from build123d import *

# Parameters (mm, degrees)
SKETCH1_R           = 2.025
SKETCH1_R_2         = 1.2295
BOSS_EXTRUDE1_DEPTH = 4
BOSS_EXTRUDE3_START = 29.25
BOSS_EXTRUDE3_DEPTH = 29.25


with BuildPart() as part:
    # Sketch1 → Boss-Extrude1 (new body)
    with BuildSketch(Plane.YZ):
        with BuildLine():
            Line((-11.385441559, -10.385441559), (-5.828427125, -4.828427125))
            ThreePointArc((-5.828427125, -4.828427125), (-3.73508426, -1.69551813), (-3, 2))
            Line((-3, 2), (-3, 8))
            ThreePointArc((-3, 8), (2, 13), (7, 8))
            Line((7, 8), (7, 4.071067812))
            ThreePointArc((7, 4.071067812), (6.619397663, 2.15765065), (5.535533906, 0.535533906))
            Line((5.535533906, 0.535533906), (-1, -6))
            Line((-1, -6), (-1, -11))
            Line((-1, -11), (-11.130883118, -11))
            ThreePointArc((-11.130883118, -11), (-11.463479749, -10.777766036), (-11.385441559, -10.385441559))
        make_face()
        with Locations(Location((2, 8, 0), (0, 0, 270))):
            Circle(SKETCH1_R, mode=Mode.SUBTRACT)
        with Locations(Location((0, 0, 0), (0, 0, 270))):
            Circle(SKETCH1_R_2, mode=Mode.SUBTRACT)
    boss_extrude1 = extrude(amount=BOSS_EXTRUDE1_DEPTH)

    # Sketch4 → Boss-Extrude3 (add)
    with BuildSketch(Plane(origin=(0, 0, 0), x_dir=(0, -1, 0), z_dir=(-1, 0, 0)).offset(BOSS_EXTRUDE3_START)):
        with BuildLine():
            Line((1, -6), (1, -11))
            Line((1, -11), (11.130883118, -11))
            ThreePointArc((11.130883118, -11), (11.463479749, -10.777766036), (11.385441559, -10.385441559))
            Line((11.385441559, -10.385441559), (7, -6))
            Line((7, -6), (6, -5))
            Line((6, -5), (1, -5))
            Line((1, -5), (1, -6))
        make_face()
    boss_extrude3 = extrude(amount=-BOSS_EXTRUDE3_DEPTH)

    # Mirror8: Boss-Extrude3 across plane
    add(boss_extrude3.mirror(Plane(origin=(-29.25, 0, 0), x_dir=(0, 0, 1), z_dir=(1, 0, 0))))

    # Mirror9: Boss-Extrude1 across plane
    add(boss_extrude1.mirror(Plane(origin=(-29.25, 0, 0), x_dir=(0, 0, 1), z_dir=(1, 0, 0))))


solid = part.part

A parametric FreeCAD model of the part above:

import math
import FreeCAD as App
import Part
import Sketcher
Q = App.Units.Quantity

doc = App.newDocument("Part")
body = doc.addObject("PartDesign::Body", "Body")

# Sketch on YZ plane
sketch1 = body.newObject("Sketcher::SketchObject", "Sketch")
sketch1.AttachmentSupport = (doc.getObject("YZ_Plane"), [""])
sketch1.MapMode = "FlatFace"
sketch1.addGeometry([
    Part.LineSegment(App.Vector(-5.83, -4.83, 0), App.Vector(-11.39, -10.39, 0)),  # 0
    Part.ArcOfCircle(Part.Circle(App.Vector(-11.13, -10.64, 0), App.Vector(0, 0, 1), 0.36), math.radians(135), math.radians(270)),  # 1
    Part.LineSegment(App.Vector(-11.13, -11, 0), App.Vector(-1, -11, 0)),  # 2
    Part.LineSegment(App.Vector(-1, -11, 0), App.Vector(-1, -6, 0)),  # 3
    Part.LineSegment(App.Vector(-1, -6, 0), App.Vector(5.54, 0.54, 0)),  # 4
    Part.ArcOfCircle(Part.Circle(App.Vector(2, 4.07, 0), App.Vector(0, 0, 1), 5), math.radians(-45), math.radians(0)),  # 5
    Part.LineSegment(App.Vector(7, 4.07, 0), App.Vector(7, 8, 0)),  # 6
    Part.ArcOfCircle(Part.Circle(App.Vector(2, 8, 0), App.Vector(0, 0, 1), 5), math.radians(0), math.radians(180)),  # 7
    Part.LineSegment(App.Vector(-3, 8, 0), App.Vector(-3, 2, 0)),  # 8
    Part.ArcOfCircle(Part.Circle(App.Vector(-12.66, 2, 0), App.Vector(0, 0, 1), 9.66), math.radians(-45), math.radians(0)),  # 9
    Part.Circle(App.Vector(0, 0, 0), App.Vector(0, 0, 1), 1.23),  # 10
    Part.Circle(App.Vector(2, 8, 0), App.Vector(0, 0, 1), 2.02),  # 11
], False)
sketch1.addConstraint([
    Sketcher.Constraint("Tangent", 0, 2, 1, 1),
    Sketcher.Constraint("Tangent", 1, 2, 2, 1),
    Sketcher.Constraint("Coincident", 2, 2, 3, 1),
    Sketcher.Constraint("Coincident", 3, 2, 4, 1),
    Sketcher.Constraint("Tangent", 4, 2, 5, 1),
    Sketcher.Constraint("Tangent", 5, 2, 6, 1),
    Sketcher.Constraint("Tangent", 6, 2, 7, 1),
    Sketcher.Constraint("Tangent", 7, 2, 8, 1),
    Sketcher.Constraint("Tangent", 8, 2, 9, 2),
    Sketcher.Constraint("Tangent", 9, 1, 0, 1),
    Sketcher.Constraint("Horizontal", 2),
    Sketcher.Constraint("Vertical", 3),
    Sketcher.Constraint("Vertical", 6),
    Sketcher.Constraint("Vertical", 8),
    Sketcher.Constraint("Coincident", 10, 3, -1, 1),
    Sketcher.Constraint("Coincident", 11, 3, 7, 3),
    Sketcher.Constraint("Equal", 5, 7),
    Sketcher.Constraint("Parallel", 0, 4),
    Sketcher.Constraint("Radius", 5, Q("5 mm")),
    Sketcher.Constraint("Diameter", 11, Q("4.05 mm")),
    Sketcher.Constraint("DistanceY", 3, 1, 3, 2, Q("5 mm")),
    Sketcher.Constraint("DistanceY", 8, 2, 8, 1, Q("6 mm")),
    Sketcher.Constraint("Angle", 0, Q("-135 deg")),
    Sketcher.Constraint("Radius", 1, Q("0.36 mm")),
    Sketcher.Constraint("Diameter", 10, Q("2.459 mm")),
    Sketcher.Constraint("DistanceX", -1, 1, 5, 3, Q("2 mm")),
    Sketcher.Constraint("DistanceY", -1, 1, 7, 3, Q("8 mm")),
    Sketcher.Constraint("DistanceY", 1, 2, -1, 1, Q("11 mm")),
    Sketcher.Constraint("DistanceX", 2, 2, -1, 1, Q("1 mm")),
    Sketcher.Constraint("Radius", 9, Q("9.656854 mm")),
])
pad1 = body.newObject("PartDesign::Pad", "Pad")
pad1.Profile = sketch1
pad1.Length = 4

# Sketch on YZ plane
sketch2 = body.newObject("Sketcher::SketchObject", "Sketch001")
sketch2.AttachmentSupport = (doc.getObject("YZ_Plane"), [""])
sketch2.MapMode = "FlatFace"
sketch2.AttachmentOffset = App.Placement(App.Vector(0, 0, -29.25), App.Rotation())
sketch2.addGeometry([
    Part.LineSegment(App.Vector(-1, -11, 0), App.Vector(-11.13, -11, 0)),  # 0
    Part.ArcOfCircle(Part.Circle(App.Vector(-11.13, -10.64, 0), App.Vector(0, 0, 1), 0.36), math.radians(135), math.radians(270)),  # 1
    Part.LineSegment(App.Vector(-11.39, -10.39, 0), App.Vector(-6, -5, 0)),  # 2
    Part.LineSegment(App.Vector(-6, -5, 0), App.Vector(-1, -5, 0)),  # 3
    Part.LineSegment(App.Vector(-1, -5, 0), App.Vector(-1, -11, 0)),  # 4
], False)
sketch2.addConstraint([
    Sketcher.Constraint("Tangent", 0, 2, 1, 2),
    Sketcher.Constraint("Tangent", 1, 1, 2, 1),
    Sketcher.Constraint("Coincident", 2, 2, 3, 1),
    Sketcher.Constraint("Coincident", 3, 2, 4, 1),
    Sketcher.Constraint("Coincident", 4, 2, 0, 1),
    Sketcher.Constraint("Horizontal", 0),
    Sketcher.Constraint("Horizontal", 3),
    Sketcher.Constraint("Vertical", 4),
    Sketcher.Constraint("DistanceX", 3, 1, 3, 2, Q("5 mm")),
    Sketcher.Constraint("DistanceY", 4, 2, 4, 1, Q("6 mm")),
    Sketcher.Constraint("Angle", 2, Q("45 deg")),
    Sketcher.Constraint("Radius", 1, Q("0.36 mm")),
    Sketcher.Constraint("DistanceY", 0, 2, -1, 1, Q("11 mm")),
    Sketcher.Constraint("DistanceX", 2, 2, -1, 1, Q("6 mm")),
])
pad2 = body.newObject("PartDesign::Pad", "Pad001")
pad2.Profile = sketch2
pad2.Length = 29.25
doc.recompute()

datumplane = body.newObject("PartDesign::Plane", "DatumPlane")
datumplane.AttachmentSupport = (doc.getObject("YZ_Plane"), [""])
datumplane.MapMode = "FlatFace"
datumplane.AttachmentOffset = App.Placement(App.Vector(0, 0, -29.25), App.Rotation())
mirrored = body.newObject("PartDesign::Mirrored", "Mirrored")
mirrored.Originals = [pad2]
mirrored.MirrorPlane = (datumplane, [""])
body.Tip = mirrored
doc.recompute()

datumplane2 = body.newObject("PartDesign::Plane", "DatumPlane001")
datumplane2.AttachmentSupport = (doc.getObject("YZ_Plane"), [""])
datumplane2.MapMode = "FlatFace"
datumplane2.AttachmentOffset = App.Placement(App.Vector(0, 0, -29.25), App.Rotation())
mirrored2 = body.newObject("PartDesign::Mirrored", "Mirrored001")
mirrored2.Originals = [pad1]
mirrored2.MirrorPlane = (datumplane2, [""])
body.Tip = mirrored2

doc.recompute()
